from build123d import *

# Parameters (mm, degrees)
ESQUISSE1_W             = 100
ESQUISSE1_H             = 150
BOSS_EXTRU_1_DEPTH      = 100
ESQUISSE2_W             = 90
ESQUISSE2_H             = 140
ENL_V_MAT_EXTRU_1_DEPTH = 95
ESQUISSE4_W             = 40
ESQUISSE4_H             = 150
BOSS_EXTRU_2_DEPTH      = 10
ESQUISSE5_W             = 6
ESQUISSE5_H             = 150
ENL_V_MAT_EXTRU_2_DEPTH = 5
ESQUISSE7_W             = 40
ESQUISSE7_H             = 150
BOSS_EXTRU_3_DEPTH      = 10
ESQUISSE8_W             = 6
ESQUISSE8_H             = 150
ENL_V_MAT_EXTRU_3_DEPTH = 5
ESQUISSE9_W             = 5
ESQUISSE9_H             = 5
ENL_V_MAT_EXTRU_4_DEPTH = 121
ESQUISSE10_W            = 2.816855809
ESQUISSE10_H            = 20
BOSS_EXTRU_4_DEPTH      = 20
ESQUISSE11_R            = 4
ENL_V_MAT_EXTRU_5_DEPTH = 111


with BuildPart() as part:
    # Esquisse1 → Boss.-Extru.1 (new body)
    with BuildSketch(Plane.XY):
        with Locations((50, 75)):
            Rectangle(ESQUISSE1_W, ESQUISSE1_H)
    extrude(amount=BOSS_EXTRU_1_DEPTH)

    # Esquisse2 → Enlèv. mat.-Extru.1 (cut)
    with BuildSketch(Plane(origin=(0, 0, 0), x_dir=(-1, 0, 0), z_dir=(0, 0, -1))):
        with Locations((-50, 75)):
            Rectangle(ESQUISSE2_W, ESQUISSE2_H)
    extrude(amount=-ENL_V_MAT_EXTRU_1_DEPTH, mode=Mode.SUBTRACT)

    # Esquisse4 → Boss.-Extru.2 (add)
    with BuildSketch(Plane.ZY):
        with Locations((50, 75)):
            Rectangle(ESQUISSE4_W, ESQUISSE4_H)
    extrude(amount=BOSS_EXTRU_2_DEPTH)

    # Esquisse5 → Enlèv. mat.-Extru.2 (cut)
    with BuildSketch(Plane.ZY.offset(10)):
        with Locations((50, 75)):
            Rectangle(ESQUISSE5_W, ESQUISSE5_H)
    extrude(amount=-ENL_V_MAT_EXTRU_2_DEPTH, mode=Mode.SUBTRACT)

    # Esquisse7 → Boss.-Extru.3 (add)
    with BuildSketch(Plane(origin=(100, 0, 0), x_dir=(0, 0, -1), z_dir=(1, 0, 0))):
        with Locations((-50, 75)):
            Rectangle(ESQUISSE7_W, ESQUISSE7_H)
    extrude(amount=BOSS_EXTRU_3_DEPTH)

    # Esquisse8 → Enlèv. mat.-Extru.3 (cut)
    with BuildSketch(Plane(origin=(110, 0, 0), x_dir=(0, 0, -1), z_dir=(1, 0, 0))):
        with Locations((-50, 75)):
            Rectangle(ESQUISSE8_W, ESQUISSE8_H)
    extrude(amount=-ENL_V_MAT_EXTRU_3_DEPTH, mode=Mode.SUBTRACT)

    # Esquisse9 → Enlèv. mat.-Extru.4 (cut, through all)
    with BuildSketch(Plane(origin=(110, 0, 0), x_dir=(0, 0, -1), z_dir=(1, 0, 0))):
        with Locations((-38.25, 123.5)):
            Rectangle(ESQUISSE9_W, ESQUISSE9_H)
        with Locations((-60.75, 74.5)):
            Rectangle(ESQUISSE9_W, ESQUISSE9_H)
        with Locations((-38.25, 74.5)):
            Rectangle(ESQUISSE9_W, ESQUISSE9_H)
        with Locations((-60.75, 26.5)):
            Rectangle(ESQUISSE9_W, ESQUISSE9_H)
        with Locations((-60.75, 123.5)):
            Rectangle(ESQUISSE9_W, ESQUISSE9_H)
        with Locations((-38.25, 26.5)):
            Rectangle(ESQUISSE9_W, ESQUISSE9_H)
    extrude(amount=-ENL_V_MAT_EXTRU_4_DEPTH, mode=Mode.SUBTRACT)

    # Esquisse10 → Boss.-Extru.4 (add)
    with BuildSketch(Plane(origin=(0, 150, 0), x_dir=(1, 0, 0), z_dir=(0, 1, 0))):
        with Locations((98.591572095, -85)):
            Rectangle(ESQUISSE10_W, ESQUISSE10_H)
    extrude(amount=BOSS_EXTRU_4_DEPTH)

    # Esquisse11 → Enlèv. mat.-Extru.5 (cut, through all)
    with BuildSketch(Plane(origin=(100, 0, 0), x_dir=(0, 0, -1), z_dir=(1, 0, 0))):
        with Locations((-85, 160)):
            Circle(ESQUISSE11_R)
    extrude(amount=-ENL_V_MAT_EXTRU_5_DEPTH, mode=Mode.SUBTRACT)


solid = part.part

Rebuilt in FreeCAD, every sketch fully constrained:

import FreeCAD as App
import Part
import Sketcher
Q = App.Units.Quantity


def add_polygon(sketch, points):
    """Adds a closed chain of lines whose ends are joined by coincident constraints."""
    first, n = sketch.GeometryCount, len(points)
    for a, b in zip(points, points[1:] + points[:1]):
        sketch.addGeometry(Part.LineSegment(App.Vector(*a, 0), App.Vector(*b, 0)), False)
    for i in range(n):
        sketch.addConstraint(Sketcher.Constraint("Coincident", first + i, 2, first + (i + 1) % n, 1))

doc = App.newDocument("Part")
body = doc.addObject("PartDesign::Body", "Body")

# Sketch on XY plane
sketch1 = doc.addObject("Sketcher::SketchObject", "Sketch")
body.addObject(sketch1)
sketch1.AttachmentSupport = (doc.XY_Plane, [""])
sketch1.MapMode = "FlatFace"
add_polygon(sketch1, [(0, 150), (0, 0), (100, 0), (100, 150)])  # lines 0-3
sketch1.addConstraint([
    Sketcher.Constraint("Vertical", 0),
    Sketcher.Constraint("Horizontal", 1),
    Sketcher.Constraint("Vertical", 2),
    Sketcher.Constraint("Horizontal", 3),
    Sketcher.Constraint("Coincident", 0, 2, -1, 1),
    Sketcher.Constraint("DistanceX", 1, 1, 1, 2, Q("100 mm")),
    Sketcher.Constraint("DistanceY", 0, 2, 0, 1, Q("150 mm")),
])
pad1 = doc.addObject("PartDesign::Pad", "Pad")
body.addObject(pad1)
pad1.Profile = sketch1
pad1.Length = 100

# Sketch on XY plane
sketch2 = doc.addObject("Sketcher::SketchObject", "Sketch001")
body.addObject(sketch2)
sketch2.AttachmentSupport = (doc.XY_Plane, [""])
sketch2.MapMode = "FlatFace"
add_polygon(sketch2, [(95, 145), (95, 5), (5, 5), (5, 145)])  # lines 0-3
sketch2.addConstraint([
    Sketcher.Constraint("Vertical", 0),
    Sketcher.Constraint("Horizontal", 1),
    Sketcher.Constraint("Vertical", 2),
    Sketcher.Constraint("Horizontal", 3),
    Sketcher.Constraint("DistanceX", 1, 2, 1, 1, Q("90 mm")),
    Sketcher.Constraint("DistanceY", 0, 2, 0, 1, Q("140 mm")),
    Sketcher.Constraint("DistanceX", -1, 1, 0, 2, Q("95 mm")),
    Sketcher.Constraint("DistanceY", -1, 1, 0, 2, Q("5 mm")),
])
pocket1 = doc.addObject("PartDesign::Pocket", "Pocket")
body.addObject(pocket1)
pocket1.Profile = sketch2
pocket1.Length = 95
pocket1.Reversed = True

# Sketch on YZ plane
sketch3 = doc.addObject("Sketcher::SketchObject", "Sketch002")
body.addObject(sketch3)
sketch3.AttachmentSupport = (doc.YZ_Plane, [""])
sketch3.MapMode = "FlatFace"
add_polygon(sketch3, [(150, 30), (0, 30), (0, 70), (150, 70)])  # lines 0-3
sketch3.addConstraint([
    Sketcher.Constraint("Horizontal", 0),
    Sketcher.Constraint("Vertical", 1),
    Sketcher.Constraint("Horizontal", 2),
    Sketcher.Constraint("Vertical", 3),
    Sketcher.Constraint("PointOnObject", 0, 2, -2),
    Sketcher.Constraint("DistanceX", 0, 2, 0, 1, Q("150 mm")),
    Sketcher.Constraint("DistanceY", 1, 1, 1, 2, Q("40 mm")),
    Sketcher.Constraint("DistanceY", -1, 1, 0, 2, Q("30 mm")),
])
pad2 = doc.addObject("PartDesign::Pad", "Pad001")
body.addObject(pad2)
pad2.Profile = sketch3
pad2.Length = 10
pad2.Reversed = True

# Sketch on YZ plane
sketch4 = doc.addObject("Sketcher::SketchObject", "Sketch003")
body.addObject(sketch4)
sketch4.AttachmentSupport = (doc.YZ_Plane, [""])
sketch4.MapMode = "FlatFace"
sketch4.AttachmentOffset = App.Placement(App.Vector(0, 0, -10), App.Rotation())
add_polygon(sketch4, [(150, 47), (0, 47), (0, 53), (150, 53)])  # lines 0-3
sketch4.addConstraint([
    Sketcher.Constraint("Horizontal", 0),
    Sketcher.Constraint("Vertical", 1),
    Sketcher.Constraint("Horizontal", 2),
    Sketcher.Constraint("Vertical", 3),
    Sketcher.Constraint("PointOnObject", 0, 2, -2),
    Sketcher.Constraint("DistanceX", 0, 2, 0, 1, Q("150 mm")),
    Sketcher.Constraint("DistanceY", 1, 1, 1, 2, Q("6 mm")),
    Sketcher.Constraint("DistanceY", -1, 1, 0, 2, Q("47 mm")),
])
pocket2 = doc.addObject("PartDesign::Pocket", "Pocket001")
body.addObject(pocket2)
pocket2.Profile = sketch4
pocket2.Length = 5
pocket2.Reversed = True

# Sketch on YZ plane
sketch5 = doc.addObject("Sketcher::SketchObject", "Sketch004")
body.addObject(sketch5)
sketch5.AttachmentSupport = (doc.YZ_Plane, [""])
sketch5.MapMode = "FlatFace"
sketch5.AttachmentOffset = App.Placement(App.Vector(0, 0, 100), App.Rotation())
add_polygon(sketch5, [(150, 70), (0, 70), (0, 30), (150, 30)])  # lines 0-3
sketch5.addConstraint([
    Sketcher.Constraint("Horizontal", 0),
    Sketcher.Constraint("Vertical", 1),
    Sketcher.Constraint("Horizontal", 2),
    Sketcher.Constraint("Vertical", 3),
    Sketcher.Constraint("PointOnObject", 0, 2, -2),
    Sketcher.Constraint("DistanceX", 0, 2, 0, 1, Q("150 mm")),
    Sketcher.Constraint("DistanceY", 1, 2, 1, 1, Q("40 mm")),
    Sketcher.Constraint("DistanceY", -1, 1, 0, 2, Q("70 mm")),
])
pad3 = doc.addObject("PartDesign::Pad", "Pad002")
body.addObject(pad3)
pad3.Profile = sketch5
pad3.Length = 10

# Sketch on YZ plane
sketch6 = doc.addObject("Sketcher::SketchObject", "Sketch005")
body.addObject(sketch6)
sketch6.AttachmentSupport = (doc.YZ_Plane, [""])
sketch6.MapMode = "FlatFace"
sketch6.AttachmentOffset = App.Placement(App.Vector(0, 0, 110), App.Rotation())
add_polygon(sketch6, [(150, 53), (0, 53), (0, 47), (150, 47)])  # lines 0-3
sketch6.addConstraint([
    Sketcher.Constraint("Horizontal", 0),
    Sketcher.Constraint("Vertical", 1),
    Sketcher.Constraint("Horizontal", 2),
    Sketcher.Constraint("Vertical", 3),
    Sketcher.Constraint("PointOnObject", 0, 2, -2),
    Sketcher.Constraint("DistanceX", 0, 2, 0, 1, Q("150 mm")),
    Sketcher.Constraint("DistanceY", 1, 2, 1, 1, Q("6 mm")),
    Sketcher.Constraint("DistanceY", -1, 1, 0, 2, Q("53 mm")),
])
pocket3 = doc.addObject("PartDesign::Pocket", "Pocket002")
body.addObject(pocket3)
pocket3.Profile = sketch6
pocket3.Length = 5

# Sketch on YZ plane
sketch7 = doc.addObject("Sketcher::SketchObject", "Sketch006")
body.addObject(sketch7)
sketch7.AttachmentSupport = (doc.YZ_Plane, [""])
sketch7.MapMode = "FlatFace"
sketch7.AttachmentOffset = App.Placement(App.Vector(0, 0, 110), App.Rotation())
add_polygon(sketch7, [(126, 41), (121, 41), (121, 36), (126, 36)])  # lines 0-3
add_polygon(sketch7, [(77, 63), (72, 63), (72, 58), (77, 58)])  # lines 4-7
add_polygon(sketch7, [(77, 41), (72, 41), (72, 36), (77, 36)])  # lines 8-11
add_polygon(sketch7, [(29, 63), (24, 63), (24, 58), (29, 58)])  # lines 12-15
add_polygon(sketch7, [(126, 63), (121, 63), (121, 58), (126, 58)])  # lines 16-19
add_polygon(sketch7, [(29, 41), (24, 41), (24, 36), (29, 36)])  # lines 20-23
sketch7.addConstraint([
    Sketcher.Constraint("Horizontal", 0),
    Sketcher.Constraint("Vertical", 1),
    Sketcher.Constraint("Horizontal", 2),
    Sketcher.Constraint("Vertical", 3),
    Sketcher.Constraint("Horizontal", 4),
    Sketcher.Constraint("Vertical", 5),
    Sketcher.Constraint("Horizontal", 6),
    Sketcher.Constraint("Vertical", 7),
    Sketcher.Constraint("Horizontal", 8),
    Sketcher.Constraint("Vertical", 9),
    Sketcher.Constraint("Horizontal", 10),
    Sketcher.Constraint("Vertical", 11),
    Sketcher.Constraint("Horizontal", 12),
    Sketcher.Constraint("Vertical", 13),
    Sketcher.Constraint("Horizontal", 14),
    Sketcher.Constraint("Vertical", 15),
    Sketcher.Constraint("Horizontal", 16),
    Sketcher.Constraint("Vertical", 17),
    Sketcher.Constraint("Horizontal", 18),
    Sketcher.Constraint("Vertical", 19),
    Sketcher.Constraint("Horizontal", 20),
    Sketcher.Constraint("Vertical", 21),
    Sketcher.Constraint("Horizontal", 22),
    Sketcher.Constraint("Vertical", 23),
    Sketcher.Constraint("Horizontal", 3, 2, 8, 2),
    Sketcher.Constraint("Horizontal", 2, 2, 9, 2),
    Sketcher.Constraint("Horizontal", 7, 2, 12, 2),
    Sketcher.Constraint("Horizontal", 6, 2, 13, 2),
    Sketcher.Constraint("Horizontal", 15, 2, 16, 2),
    Sketcher.Constraint("Horizontal", 14, 2, 17, 2),
    Sketcher.Constraint("Horizontal", 11, 2, 20, 2),
    Sketcher.Constraint("Horizontal", 10, 2, 21, 2),
    Sketcher.Constraint("Vertical", 5, 2, 8, 2),
    Sketcher.Constraint("Vertical", 7, 2, 10, 2),
    Sketcher.Constraint("Vertical", 1, 2, 16, 2),
    Sketcher.Constraint("Vertical", 3, 2, 18, 2),
    Sketcher.Constraint("Vertical", 13, 2, 20, 2),
    Sketcher.Constraint("Vertical", 15, 2, 22, 2),
    Sketcher.Constraint("Equal", 2, 4),
    Sketcher.Constraint("Equal", 10, 12),
    Sketcher.Constraint("Equal", 22, 1),
    Sketcher.Constraint("Equal", 3, 5),
    Sketcher.Constraint("DistanceX", 0, 2, 0, 1, Q("5 mm")),
    Sketcher.Constraint("DistanceX", -1, 1, 0, 2, Q("121 mm")),
    Sketcher.Constraint("DistanceX", -1, 1, 4, 2, Q("72 mm")),
    Sketcher.Constraint("DistanceX", -1, 1, 12, 2, Q("24 mm")),
    Sketcher.Constraint("DistanceY", 0, 2, 4, 2, Q("22.5 mm")),
    Sketcher.Constraint("DistanceY", -1, 1, 0, 2, Q("40.75 mm")),
])
pocket4 = doc.addObject("PartDesign::Pocket", "Pocket003")
body.addObject(pocket4)
pocket4.Profile = sketch7
pocket4.Type = "ThroughAll"

# Sketch on XZ plane
sketch8 = doc.addObject("Sketcher::SketchObject", "Sketch007")
body.addObject(sketch8)
sketch8.AttachmentSupport = (doc.XZ_Plane, [""])
sketch8.MapMode = "FlatFace"
sketch8.AttachmentOffset = App.Placement(App.Vector(0, 0, -150), App.Rotation())
add_polygon(sketch8, [(97.2, 75), (97.2, 95), (100, 95), (100, 75)])  # lines 0-3
sketch8.addConstraint([
    Sketcher.Constraint("Vertical", 0),
    Sketcher.Constraint("Horizontal", 1),
    Sketcher.Constraint("Vertical", 2),
    Sketcher.Constraint("Horizontal", 3),
    Sketcher.Constraint("DistanceY", 0, 1, 0, 2, Q("20 mm")),
    Sketcher.Constraint("DistanceY", -1, 1, 0, 2, Q("95 mm")),
    Sketcher.Constraint("DistanceX", -1, 1, 1, 2, Q("100 mm")),
    Sketcher.Constraint("DistanceX", 1, 1, 1, 2, Q("2.816856 mm")),
])
pad4 = doc.addObject("PartDesign::Pad", "Pad003")
body.addObject(pad4)
pad4.Profile = sketch8
pad4.Length = 20
pad4.Reversed = True

# Sketch on YZ plane
sketch9 = doc.addObject("Sketcher::SketchObject", "Sketch008")
body.addObject(sketch9)
sketch9.AttachmentSupport = (doc.YZ_Plane, [""])
sketch9.MapMode = "FlatFace"
sketch9.AttachmentOffset = App.Placement(App.Vector(0, 0, 100), App.Rotation())
sketch9.addGeometry(Part.Circle(App.Vector(160, 85, 0), App.Vector(0, 0, 1), 4), False)
sketch9.addConstraint([
    Sketcher.Constraint("Diameter", 0, Q("8 mm")),
    Sketcher.Constraint("DistanceX", -1, 1, 0, 3, Q("160 mm")),
    Sketcher.Constraint("DistanceY", -1, 1, 0, 3, Q("85 mm")),
])
pocket5 = doc.addObject("PartDesign::Pocket", "Pocket004")
body.addObject(pocket5)
pocket5.Profile = sketch9
pocket5.Type = "ThroughAll"

doc.recompute()
